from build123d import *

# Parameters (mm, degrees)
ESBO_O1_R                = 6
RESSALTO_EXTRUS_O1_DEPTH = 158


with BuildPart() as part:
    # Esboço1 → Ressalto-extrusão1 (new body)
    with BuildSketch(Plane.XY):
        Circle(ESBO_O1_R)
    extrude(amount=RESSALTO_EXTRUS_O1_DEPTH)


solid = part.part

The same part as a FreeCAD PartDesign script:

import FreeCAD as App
import Part
import Sketcher
from FreeCAD import Vector

doc = App.newDocument("Part")
body = doc.addObject("PartDesign::Body", "Body")

# Sketch on XY plane
sketch1 = body.newObject("Sketcher::SketchObject", "Sketch")
sketch1.AttachmentSupport = (doc.getObject("XY_Plane"), [""])
sketch1.MapMode = "FlatFace"
sketch1.addGeometry(Part.Circle(Vector(0, 0, 0), Vector(0, 0, 1), 6), False)
sketch1.addConstraint([
    Sketcher.Constraint("Coincident", 0, 3, -1, 1),
    Sketcher.Constraint("Diameter", 0, 12.0),
])
pad1 = body.newObject("PartDesign::Pad", "Pad")
pad1.Profile = sketch1
pad1.Length = 158

doc.recompute()
